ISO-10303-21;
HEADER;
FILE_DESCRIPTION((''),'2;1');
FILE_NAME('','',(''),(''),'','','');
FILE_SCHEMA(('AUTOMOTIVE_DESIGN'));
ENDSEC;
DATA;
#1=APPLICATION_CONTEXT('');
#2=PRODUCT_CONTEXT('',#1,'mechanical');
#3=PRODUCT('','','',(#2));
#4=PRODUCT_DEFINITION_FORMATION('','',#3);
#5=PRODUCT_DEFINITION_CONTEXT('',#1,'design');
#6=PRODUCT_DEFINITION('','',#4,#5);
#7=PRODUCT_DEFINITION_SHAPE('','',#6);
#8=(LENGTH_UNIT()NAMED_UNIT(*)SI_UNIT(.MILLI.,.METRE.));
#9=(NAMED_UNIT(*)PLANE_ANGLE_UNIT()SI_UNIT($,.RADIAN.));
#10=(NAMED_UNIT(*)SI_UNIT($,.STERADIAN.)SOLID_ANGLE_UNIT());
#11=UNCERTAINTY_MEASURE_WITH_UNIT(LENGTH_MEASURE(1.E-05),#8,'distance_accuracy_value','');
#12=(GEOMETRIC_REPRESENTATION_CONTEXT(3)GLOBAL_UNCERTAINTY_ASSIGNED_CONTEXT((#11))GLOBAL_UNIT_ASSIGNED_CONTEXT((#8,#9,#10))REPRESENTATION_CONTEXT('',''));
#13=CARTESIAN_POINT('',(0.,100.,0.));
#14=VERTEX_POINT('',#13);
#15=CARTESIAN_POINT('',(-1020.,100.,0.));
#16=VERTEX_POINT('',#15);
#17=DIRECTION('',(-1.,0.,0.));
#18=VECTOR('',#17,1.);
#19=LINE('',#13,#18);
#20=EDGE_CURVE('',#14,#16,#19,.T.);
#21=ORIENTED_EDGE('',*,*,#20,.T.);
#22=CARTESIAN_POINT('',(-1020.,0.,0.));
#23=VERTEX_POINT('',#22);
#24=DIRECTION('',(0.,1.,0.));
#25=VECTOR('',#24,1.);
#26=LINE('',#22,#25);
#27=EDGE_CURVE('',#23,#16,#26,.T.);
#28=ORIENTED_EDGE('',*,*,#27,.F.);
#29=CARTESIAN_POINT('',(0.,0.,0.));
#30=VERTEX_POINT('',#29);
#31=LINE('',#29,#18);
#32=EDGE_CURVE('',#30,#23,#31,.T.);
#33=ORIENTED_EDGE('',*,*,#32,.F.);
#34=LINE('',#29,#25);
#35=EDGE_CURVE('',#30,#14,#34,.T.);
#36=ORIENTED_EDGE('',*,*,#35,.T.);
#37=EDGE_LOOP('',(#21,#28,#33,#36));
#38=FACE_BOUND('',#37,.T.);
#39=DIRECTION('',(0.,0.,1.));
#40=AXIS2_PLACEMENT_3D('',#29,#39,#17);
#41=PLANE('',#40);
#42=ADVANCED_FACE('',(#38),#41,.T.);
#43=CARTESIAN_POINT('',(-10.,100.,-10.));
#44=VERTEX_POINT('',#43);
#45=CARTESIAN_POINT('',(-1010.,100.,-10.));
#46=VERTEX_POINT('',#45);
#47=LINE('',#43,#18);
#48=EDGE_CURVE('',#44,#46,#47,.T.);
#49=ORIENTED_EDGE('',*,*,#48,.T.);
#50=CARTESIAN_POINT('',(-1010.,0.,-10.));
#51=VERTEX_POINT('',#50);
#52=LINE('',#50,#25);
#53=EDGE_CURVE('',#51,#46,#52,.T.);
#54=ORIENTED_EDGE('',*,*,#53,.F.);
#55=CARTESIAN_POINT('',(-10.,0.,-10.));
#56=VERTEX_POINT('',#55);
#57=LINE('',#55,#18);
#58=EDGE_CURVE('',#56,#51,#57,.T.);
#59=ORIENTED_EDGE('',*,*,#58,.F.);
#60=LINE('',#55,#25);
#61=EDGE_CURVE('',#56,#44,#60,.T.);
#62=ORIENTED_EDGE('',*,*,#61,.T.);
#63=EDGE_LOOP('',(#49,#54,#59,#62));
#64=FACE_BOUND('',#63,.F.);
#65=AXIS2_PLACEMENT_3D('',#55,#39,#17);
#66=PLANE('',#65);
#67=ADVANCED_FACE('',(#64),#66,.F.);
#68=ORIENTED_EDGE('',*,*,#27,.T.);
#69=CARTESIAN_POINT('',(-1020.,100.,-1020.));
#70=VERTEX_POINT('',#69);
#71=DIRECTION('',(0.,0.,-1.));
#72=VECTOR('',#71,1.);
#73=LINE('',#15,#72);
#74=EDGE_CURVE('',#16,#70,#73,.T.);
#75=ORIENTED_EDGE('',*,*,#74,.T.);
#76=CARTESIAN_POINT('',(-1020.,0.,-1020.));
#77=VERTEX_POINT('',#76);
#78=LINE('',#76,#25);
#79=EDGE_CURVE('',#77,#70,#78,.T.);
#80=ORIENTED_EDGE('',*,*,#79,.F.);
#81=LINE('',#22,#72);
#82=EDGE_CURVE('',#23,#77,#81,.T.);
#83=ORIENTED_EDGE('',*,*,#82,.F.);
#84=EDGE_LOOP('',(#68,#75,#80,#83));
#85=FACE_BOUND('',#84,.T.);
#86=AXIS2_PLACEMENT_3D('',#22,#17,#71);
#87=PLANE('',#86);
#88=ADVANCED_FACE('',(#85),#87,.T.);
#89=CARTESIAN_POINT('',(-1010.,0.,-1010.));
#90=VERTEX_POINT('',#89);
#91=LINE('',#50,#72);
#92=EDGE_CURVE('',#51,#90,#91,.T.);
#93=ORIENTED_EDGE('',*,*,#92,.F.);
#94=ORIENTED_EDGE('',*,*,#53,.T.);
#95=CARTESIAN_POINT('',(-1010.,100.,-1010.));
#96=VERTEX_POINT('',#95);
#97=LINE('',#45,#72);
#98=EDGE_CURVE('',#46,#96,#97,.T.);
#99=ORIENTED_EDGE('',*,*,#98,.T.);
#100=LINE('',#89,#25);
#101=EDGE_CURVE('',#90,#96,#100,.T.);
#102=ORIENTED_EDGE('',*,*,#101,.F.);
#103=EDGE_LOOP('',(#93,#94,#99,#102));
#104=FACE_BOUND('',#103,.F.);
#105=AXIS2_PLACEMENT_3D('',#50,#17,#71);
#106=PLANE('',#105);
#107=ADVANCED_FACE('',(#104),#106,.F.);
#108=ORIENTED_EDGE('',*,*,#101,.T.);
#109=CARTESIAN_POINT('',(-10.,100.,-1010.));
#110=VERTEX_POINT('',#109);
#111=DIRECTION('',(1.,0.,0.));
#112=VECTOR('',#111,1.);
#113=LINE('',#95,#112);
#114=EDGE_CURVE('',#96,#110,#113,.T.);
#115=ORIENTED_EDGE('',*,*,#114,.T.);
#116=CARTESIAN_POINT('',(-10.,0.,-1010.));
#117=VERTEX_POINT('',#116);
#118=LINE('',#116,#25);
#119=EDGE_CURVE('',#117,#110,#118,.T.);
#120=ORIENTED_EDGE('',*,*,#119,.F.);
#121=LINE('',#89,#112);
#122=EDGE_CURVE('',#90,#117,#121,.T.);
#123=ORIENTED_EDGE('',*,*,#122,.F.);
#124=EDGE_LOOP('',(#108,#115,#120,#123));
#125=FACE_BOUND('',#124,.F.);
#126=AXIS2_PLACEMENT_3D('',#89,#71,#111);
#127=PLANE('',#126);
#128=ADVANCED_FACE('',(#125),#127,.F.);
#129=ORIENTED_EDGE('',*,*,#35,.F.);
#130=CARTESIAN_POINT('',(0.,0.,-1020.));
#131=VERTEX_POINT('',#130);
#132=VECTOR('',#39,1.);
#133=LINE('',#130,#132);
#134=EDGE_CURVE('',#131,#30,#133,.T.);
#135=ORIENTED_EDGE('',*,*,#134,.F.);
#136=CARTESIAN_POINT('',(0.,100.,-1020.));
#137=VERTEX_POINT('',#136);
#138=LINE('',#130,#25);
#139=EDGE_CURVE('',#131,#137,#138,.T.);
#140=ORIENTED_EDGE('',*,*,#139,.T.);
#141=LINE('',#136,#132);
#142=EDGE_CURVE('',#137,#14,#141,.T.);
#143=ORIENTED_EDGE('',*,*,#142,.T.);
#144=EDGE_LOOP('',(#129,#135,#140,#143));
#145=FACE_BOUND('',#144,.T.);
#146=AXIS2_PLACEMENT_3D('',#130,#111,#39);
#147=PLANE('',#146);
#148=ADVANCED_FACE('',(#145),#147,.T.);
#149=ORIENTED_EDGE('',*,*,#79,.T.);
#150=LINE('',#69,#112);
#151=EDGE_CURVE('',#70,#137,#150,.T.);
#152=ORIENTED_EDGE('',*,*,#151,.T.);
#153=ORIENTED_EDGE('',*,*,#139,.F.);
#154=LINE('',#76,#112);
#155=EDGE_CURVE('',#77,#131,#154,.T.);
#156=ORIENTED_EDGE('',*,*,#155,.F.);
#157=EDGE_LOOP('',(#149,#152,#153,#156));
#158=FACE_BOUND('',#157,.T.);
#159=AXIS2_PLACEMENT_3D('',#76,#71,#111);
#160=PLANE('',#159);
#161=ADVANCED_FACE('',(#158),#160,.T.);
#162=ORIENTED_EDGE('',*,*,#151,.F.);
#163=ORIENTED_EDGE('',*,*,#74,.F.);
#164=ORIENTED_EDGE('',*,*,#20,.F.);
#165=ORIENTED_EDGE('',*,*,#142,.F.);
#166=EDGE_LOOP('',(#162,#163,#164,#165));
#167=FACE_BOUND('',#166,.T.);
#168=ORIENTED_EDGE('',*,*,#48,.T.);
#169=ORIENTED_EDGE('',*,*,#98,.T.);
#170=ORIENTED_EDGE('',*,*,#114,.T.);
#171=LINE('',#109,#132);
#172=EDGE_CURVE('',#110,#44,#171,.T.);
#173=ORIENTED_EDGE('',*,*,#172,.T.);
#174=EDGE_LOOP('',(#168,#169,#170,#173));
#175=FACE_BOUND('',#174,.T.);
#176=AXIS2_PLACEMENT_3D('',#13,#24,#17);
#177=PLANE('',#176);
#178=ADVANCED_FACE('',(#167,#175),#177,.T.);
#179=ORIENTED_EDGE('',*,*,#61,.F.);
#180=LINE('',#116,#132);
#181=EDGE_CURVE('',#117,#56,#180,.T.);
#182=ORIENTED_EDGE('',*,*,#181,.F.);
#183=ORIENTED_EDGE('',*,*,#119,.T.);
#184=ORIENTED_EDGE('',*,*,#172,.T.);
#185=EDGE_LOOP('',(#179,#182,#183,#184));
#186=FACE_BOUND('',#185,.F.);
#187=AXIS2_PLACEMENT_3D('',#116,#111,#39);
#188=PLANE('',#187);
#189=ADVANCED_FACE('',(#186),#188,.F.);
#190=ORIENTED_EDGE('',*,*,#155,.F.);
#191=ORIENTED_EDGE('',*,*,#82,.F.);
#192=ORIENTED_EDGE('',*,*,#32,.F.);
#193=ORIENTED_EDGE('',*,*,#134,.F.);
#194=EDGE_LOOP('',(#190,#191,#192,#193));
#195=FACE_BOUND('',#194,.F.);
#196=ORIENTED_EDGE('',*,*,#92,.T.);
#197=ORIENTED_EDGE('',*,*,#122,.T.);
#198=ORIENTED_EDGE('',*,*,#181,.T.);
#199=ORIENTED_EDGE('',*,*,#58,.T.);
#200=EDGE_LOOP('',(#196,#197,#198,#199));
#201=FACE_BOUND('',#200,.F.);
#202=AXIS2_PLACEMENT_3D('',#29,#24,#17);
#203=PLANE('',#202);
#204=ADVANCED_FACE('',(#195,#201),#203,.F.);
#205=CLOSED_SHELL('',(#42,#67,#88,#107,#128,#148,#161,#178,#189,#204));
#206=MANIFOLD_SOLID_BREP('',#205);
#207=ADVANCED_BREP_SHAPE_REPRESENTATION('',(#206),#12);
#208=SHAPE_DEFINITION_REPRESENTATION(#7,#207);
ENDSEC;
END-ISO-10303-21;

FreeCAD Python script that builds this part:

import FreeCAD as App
import Part
import Sketcher
from FreeCAD import Vector
Q = App.Units.Quantity

doc = App.newDocument("Part")
params = doc.addObject("Spreadsheet::Sheet", "Params")
for row, (alias, value) in enumerate([
    ("sketch1_width", "1020 mm"),
    ("sketch1_width2", "1000 mm"),
    ("pad1_length", "100 mm"),
], start=1):
    params.set(f"A{row}", alias)
    params.set(f"B{row}", "=" + value)
    params.setAlias(f"B{row}", alias)

body = doc.addObject("PartDesign::Body", "Body")

# Sketch on XZ plane
sketch1 = body.newObject("Sketcher::SketchObject", "Sketch")
sketch1.AttachmentSupport = (doc.getObject("XZ_Plane"), [""])
sketch1.MapMode = "FlatFace"
sketch1.addGeometry([
    Part.LineSegment(Vector(-1020, 0, 0), Vector(0, 0, 0)),  # 0
    Part.LineSegment(Vector(0, 0, 0), Vector(0, -1020, 0)),  # 1
    Part.LineSegment(Vector(0, -1020, 0), Vector(-1020, -1020, 0)),  # 2
    Part.LineSegment(Vector(-1020, -1020, 0), Vector(-1020, 0, 0)),  # 3
    Part.LineSegment(Vector(-10, -1010, 0), Vector(-10, -10, 0)),  # 4
    Part.LineSegment(Vector(-10, -10, 0), Vector(-1010, -10, 0)),  # 5
    Part.LineSegment(Vector(-1010, -10, 0), Vector(-1010, -1010, 0)),  # 6
    Part.LineSegment(Vector(-1010, -1010, 0), Vector(-10, -1010, 0)),  # 7
], False)
sketch1.addConstraint([
    Sketcher.Constraint("Coincident", 0, 2, 1, 1),
    Sketcher.Constraint("Coincident", 1, 2, 2, 1),
    Sketcher.Constraint("Coincident", 2, 2, 3, 1),
    Sketcher.Constraint("Coincident", 3, 2, 0, 1),
    Sketcher.Constraint("Coincident", 4, 2, 5, 1),
    Sketcher.Constraint("Coincident", 5, 2, 6, 1),
    Sketcher.Constraint("Coincident", 6, 2, 7, 1),
    Sketcher.Constraint("Coincident", 7, 2, 4, 1),
    Sketcher.Constraint("Horizontal", 0),
    Sketcher.Constraint("Vertical", 1),
    Sketcher.Constraint("Horizontal", 2),
    Sketcher.Constraint("Vertical", 3),
    Sketcher.Constraint("Vertical", 4),
    Sketcher.Constraint("Horizontal", 5),
    Sketcher.Constraint("Vertical", 6),
    Sketcher.Constraint("Horizontal", 7),
    Sketcher.Constraint("Coincident", 0, 2, -1, 1),
    Sketcher.Constraint("Equal", 2, 1),
    Sketcher.Constraint("Equal", 7, 4),
    Sketcher.Constraint("DistanceX", 0, 1, 0, 2, Q("1020 mm")),
    Sketcher.Constraint("DistanceX", 5, 2, 5, 1, Q("1000 mm")),
    Sketcher.Constraint("DistanceX", 4, 2, -1, 1, Q("10 mm")),
    Sketcher.Constraint("DistanceY", 4, 2, -1, 1, Q("10 mm")),
])
sketch1.setExpression("Constraints[19]", "Params.sketch1_width")
sketch1.setExpression("Constraints[20]", "Params.sketch1_width2")
pad1 = body.newObject("PartDesign::Pad", "Pad")
pad1.Profile = sketch1
pad1.setExpression("Length", "Params.pad1_length")
pad1.Reversed = True

doc.recompute()
